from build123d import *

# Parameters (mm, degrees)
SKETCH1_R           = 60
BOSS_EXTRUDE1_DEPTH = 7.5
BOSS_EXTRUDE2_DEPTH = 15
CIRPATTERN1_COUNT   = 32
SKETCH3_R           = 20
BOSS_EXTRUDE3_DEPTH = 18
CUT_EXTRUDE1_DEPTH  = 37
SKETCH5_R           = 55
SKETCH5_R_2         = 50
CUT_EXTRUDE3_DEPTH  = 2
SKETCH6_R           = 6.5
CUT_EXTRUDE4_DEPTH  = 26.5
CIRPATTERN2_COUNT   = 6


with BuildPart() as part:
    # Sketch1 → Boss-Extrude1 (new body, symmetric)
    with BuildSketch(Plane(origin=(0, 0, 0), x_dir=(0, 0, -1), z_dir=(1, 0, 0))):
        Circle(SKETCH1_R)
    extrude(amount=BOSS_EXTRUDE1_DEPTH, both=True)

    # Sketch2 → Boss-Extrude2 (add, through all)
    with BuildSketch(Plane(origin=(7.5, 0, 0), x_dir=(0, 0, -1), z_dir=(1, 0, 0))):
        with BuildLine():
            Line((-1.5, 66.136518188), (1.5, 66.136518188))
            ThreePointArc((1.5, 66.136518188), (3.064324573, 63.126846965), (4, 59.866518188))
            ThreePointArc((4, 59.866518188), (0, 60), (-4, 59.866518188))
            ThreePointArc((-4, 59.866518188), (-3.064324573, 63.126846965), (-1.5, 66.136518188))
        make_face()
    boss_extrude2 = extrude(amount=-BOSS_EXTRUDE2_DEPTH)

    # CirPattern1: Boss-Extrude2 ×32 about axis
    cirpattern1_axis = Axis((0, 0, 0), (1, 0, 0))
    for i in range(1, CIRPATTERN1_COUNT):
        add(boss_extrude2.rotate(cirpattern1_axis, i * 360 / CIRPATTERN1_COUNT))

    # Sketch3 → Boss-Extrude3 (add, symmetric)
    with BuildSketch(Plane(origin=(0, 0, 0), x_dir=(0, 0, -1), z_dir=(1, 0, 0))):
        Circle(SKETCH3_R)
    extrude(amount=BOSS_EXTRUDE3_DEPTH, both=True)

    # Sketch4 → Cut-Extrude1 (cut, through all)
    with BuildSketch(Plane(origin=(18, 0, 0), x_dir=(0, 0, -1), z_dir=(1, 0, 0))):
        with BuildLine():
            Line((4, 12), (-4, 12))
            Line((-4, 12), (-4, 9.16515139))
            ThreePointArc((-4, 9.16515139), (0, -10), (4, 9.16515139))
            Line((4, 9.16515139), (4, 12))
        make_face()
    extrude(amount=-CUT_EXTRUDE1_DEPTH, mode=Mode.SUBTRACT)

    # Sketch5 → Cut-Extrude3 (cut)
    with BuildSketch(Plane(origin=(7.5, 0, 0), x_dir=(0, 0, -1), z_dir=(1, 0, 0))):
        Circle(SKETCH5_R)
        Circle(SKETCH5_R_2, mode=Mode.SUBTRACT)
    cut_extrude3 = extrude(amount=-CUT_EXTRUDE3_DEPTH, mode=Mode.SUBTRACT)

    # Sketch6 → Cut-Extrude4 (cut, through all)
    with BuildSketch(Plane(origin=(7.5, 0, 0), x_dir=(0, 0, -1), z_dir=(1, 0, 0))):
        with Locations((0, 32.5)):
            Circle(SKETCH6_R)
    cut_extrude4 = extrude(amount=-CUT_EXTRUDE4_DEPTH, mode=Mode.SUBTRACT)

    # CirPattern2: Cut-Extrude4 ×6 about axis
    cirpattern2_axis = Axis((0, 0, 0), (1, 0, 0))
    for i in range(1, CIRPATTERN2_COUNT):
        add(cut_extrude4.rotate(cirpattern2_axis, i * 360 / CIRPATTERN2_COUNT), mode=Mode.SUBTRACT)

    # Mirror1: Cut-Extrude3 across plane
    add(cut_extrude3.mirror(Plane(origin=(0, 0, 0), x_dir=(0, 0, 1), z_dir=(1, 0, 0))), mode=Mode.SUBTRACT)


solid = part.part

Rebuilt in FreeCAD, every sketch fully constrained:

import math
import FreeCAD as App
import Part
import Sketcher

doc = App.newDocument("Part")
body = doc.addObject("PartDesign::Body", "Body")

sketch1 = doc.addObject("Sketcher::SketchObject", "Sketch")
body.addObject(sketch1)
sketch1.AttachmentSupport = (doc.YZ_Plane, [""])
sketch1.MapMode = "FlatFace"
sketch1.addGeometry(Part.Circle(App.Vector(0, 0, 0), App.Vector(0, 0, 1), 60), False)
sketch1.addConstraint(Sketcher.Constraint("Coincident", 0, 3, -1, 1))
sketch1.addConstraint(Sketcher.Constraint("Diameter", 0, 120.0))
pad1 = doc.addObject("PartDesign::Pad", "Pad")
body.addObject(pad1)
pad1.Profile = sketch1
pad1.Length = 15
pad1.Midplane = True

sketch2 = doc.addObject("Sketcher::SketchObject", "Sketch001")
body.addObject(sketch2)
sketch2.AttachmentSupport = (doc.YZ_Plane, [""])
sketch2.MapMode = "FlatFace"
sketch2.AttachmentOffset = App.Placement(App.Vector(0, 0, 7.5), App.Rotation())
sketch2.addGeometry(Part.LineSegment(App.Vector(66.1, -1.5, 0), App.Vector(66.1, 1.5, 0)), False)
sketch2.addGeometry(Part.ArcOfCircle(Part.Circle(App.Vector(56.8, -12.7, 0), App.Vector(0, 0, 1), 17), math.radians(57), math.radians(80)), False)
sketch2.addGeometry(Part.ArcOfCircle(Part.Circle(App.Vector(0, 0, 0), App.Vector(0, 0, 1), 60), math.radians(-3.82), math.radians(3.82)), False)
sketch2.addGeometry(Part.ArcOfCircle(Part.Circle(App.Vector(56.8, 12.7, 0), App.Vector(0, 0, 1), 17), math.radians(-80), math.radians(-57)), False)
sketch2.addConstraint(Sketcher.Constraint("Coincident", 0, 2, 1, 1))
sketch2.addConstraint(Sketcher.Constraint("Coincident", 1, 2, 2, 2))
sketch2.addConstraint(Sketcher.Constraint("Coincident", 2, 1, 3, 1))
sketch2.addConstraint(Sketcher.Constraint("Coincident", 3, 2, 0, 1))
sketch2.addConstraint(Sketcher.Constraint("Vertical", 0))
sketch2.addConstraint(Sketcher.Constraint("Coincident", 2, 3, -1, 1))
sketch2.addConstraint(Sketcher.Constraint("Equal", 1, 3))
sketch2.addConstraint(Sketcher.Constraint("Symmetric", 1, 3, 3, 3, -1))
sketch2.addConstraint(Sketcher.Constraint("Radius", 1, 17.0))
sketch2.addConstraint(Sketcher.Constraint("Radius", 2, 60.0))
sketch2.addConstraint(Sketcher.Constraint("DistanceY", 0, 1, 0, 2, 3.0))
sketch2.addConstraint(Sketcher.Constraint("DistanceY", -1, 1, 1, 2, 4.0))
sketch2.addConstraint(Sketcher.Constraint("DistanceX", 1, 2, 0, 2, 6.27))
pad2 = doc.addObject("PartDesign::Pad", "Pad001")
body.addObject(pad2)
pad2.Profile = sketch2
pad2.Length = 15
pad2.Reversed = True
doc.recompute()

polarpattern = doc.addObject("PartDesign::PolarPattern", "PolarPattern")
body.addObject(polarpattern)
polarpattern.Originals = [pad2]
polarpattern.Axis = (doc.X_Axis, [""])
polarpattern.Angle = 360
polarpattern.Occurrences = 32
body.Tip = polarpattern

sketch3 = doc.addObject("Sketcher::SketchObject", "Sketch002")
body.addObject(sketch3)
sketch3.AttachmentSupport = (doc.YZ_Plane, [""])
sketch3.MapMode = "FlatFace"
sketch3.addGeometry(Part.Circle(App.Vector(0, 0, 0), App.Vector(0, 0, 1), 20), False)
sketch3.addConstraint(Sketcher.Constraint("Coincident", 0, 3, -1, 1))
sketch3.addConstraint(Sketcher.Constraint("Diameter", 0, 40.0))
pad3 = doc.addObject("PartDesign::Pad", "Pad002")
body.addObject(pad3)
pad3.Profile = sketch3
pad3.Length = 36
pad3.Midplane = True

sketch4 = doc.addObject("Sketcher::SketchObject", "Sketch003")
body.addObject(sketch4)
sketch4.AttachmentSupport = (doc.YZ_Plane, [""])
sketch4.MapMode = "FlatFace"
sketch4.AttachmentOffset = App.Placement(App.Vector(0, 0, 18), App.Rotation())
sketch4.addGeometry(Part.LineSegment(App.Vector(12, -4, 0), App.Vector(12, 4, 0)), False)
sketch4.addGeometry(Part.LineSegment(App.Vector(12, 4, 0), App.Vector(9.2, 4, 0)), False)
sketch4.addGeometry(Part.ArcOfCircle(Part.Circle(App.Vector(0, 0, 0), App.Vector(0, 0, 1), 10), math.radians(24), math.radians(336)), False)
sketch4.addGeometry(Part.LineSegment(App.Vector(9.2, -4, 0), App.Vector(12, -4, 0)), False)
sketch4.addConstraint(Sketcher.Constraint("Coincident", 0, 2, 1, 1))
sketch4.addConstraint(Sketcher.Constraint("Coincident", 1, 2, 2, 1))
sketch4.addConstraint(Sketcher.Constraint("Coincident", 2, 2, 3, 1))
sketch4.addConstraint(Sketcher.Constraint("Coincident", 3, 2, 0, 1))
sketch4.addConstraint(Sketcher.Constraint("Vertical", 0))
sketch4.addConstraint(Sketcher.Constraint("Horizontal", 1))
sketch4.addConstraint(Sketcher.Constraint("Horizontal", 3))
sketch4.addConstraint(Sketcher.Constraint("Coincident", 2, 3, -1, 1))
sketch4.addConstraint(Sketcher.Constraint("Vertical", 1, 2, 2, 2))
sketch4.addConstraint(Sketcher.Constraint("Radius", 2, 10.0))
sketch4.addConstraint(Sketcher.Constraint("DistanceY", 0, 1, 0, 2, 8.0))
sketch4.addConstraint(Sketcher.Constraint("DistanceX", -1, 1, 0, 2, 12.0))
pocket1 = doc.addObject("PartDesign::Pocket", "Pocket")
body.addObject(pocket1)
pocket1.Profile = sketch4
pocket1.Type = "ThroughAll"

sketch5 = doc.addObject("Sketcher::SketchObject", "Sketch004")
body.addObject(sketch5)
sketch5.AttachmentSupport = (doc.YZ_Plane, [""])
sketch5.MapMode = "FlatFace"
sketch5.AttachmentOffset = App.Placement(App.Vector(0, 0, 7.5), App.Rotation())
sketch5.addGeometry(Part.Circle(App.Vector(0, 0, 0), App.Vector(0, 0, 1), 55), False)
sketch5.addGeometry(Part.Circle(App.Vector(0, 0, 0), App.Vector(0, 0, 1), 50), False)
sketch5.addConstraint(Sketcher.Constraint("Coincident", 0, 3, -1, 1))
sketch5.addConstraint(Sketcher.Constraint("Coincident", 1, 3, -1, 1))
sketch5.addConstraint(Sketcher.Constraint("Diameter", 0, 110.0))
sketch5.addConstraint(Sketcher.Constraint("Diameter", 1, 100.0))
pocket2 = doc.addObject("PartDesign::Pocket", "Pocket001")
body.addObject(pocket2)
pocket2.Profile = sketch5
pocket2.Length = 2

sketch6 = doc.addObject("Sketcher::SketchObject", "Sketch005")
body.addObject(sketch6)
sketch6.AttachmentSupport = (doc.YZ_Plane, [""])
sketch6.MapMode = "FlatFace"
sketch6.AttachmentOffset = App.Placement(App.Vector(0, 0, 7.5), App.Rotation())
sketch6.addGeometry(Part.Circle(App.Vector(32, 0, 0), App.Vector(0, 0, 1), 6), False)
sketch6.addConstraint(Sketcher.Constraint("PointOnObject", 0, 3, -1))
sketch6.addConstraint(Sketcher.Constraint("Diameter", 0, 13.0))
sketch6.addConstraint(Sketcher.Constraint("DistanceX", -1, 1, 0, 3, 32.5))
pocket3 = doc.addObject("PartDesign::Pocket", "Pocket002")
body.addObject(pocket3)
pocket3.Profile = sketch6
pocket3.Type = "ThroughAll"
doc.recompute()

polarpattern2 = doc.addObject("PartDesign::PolarPattern", "PolarPattern001")
body.addObject(polarpattern2)
polarpattern2.Originals = [pocket3]
polarpattern2.Axis = (doc.X_Axis, [""])
polarpattern2.Angle = 360
polarpattern2.Occurrences = 6
body.Tip = polarpattern2
doc.recompute()

mirrored = doc.addObject("PartDesign::Mirrored", "Mirrored")
body.addObject(mirrored)
mirrored.Originals = [pocket2]
mirrored.MirrorPlane = (doc.YZ_Plane, [""])
body.Tip = mirrored

doc.recompute()
